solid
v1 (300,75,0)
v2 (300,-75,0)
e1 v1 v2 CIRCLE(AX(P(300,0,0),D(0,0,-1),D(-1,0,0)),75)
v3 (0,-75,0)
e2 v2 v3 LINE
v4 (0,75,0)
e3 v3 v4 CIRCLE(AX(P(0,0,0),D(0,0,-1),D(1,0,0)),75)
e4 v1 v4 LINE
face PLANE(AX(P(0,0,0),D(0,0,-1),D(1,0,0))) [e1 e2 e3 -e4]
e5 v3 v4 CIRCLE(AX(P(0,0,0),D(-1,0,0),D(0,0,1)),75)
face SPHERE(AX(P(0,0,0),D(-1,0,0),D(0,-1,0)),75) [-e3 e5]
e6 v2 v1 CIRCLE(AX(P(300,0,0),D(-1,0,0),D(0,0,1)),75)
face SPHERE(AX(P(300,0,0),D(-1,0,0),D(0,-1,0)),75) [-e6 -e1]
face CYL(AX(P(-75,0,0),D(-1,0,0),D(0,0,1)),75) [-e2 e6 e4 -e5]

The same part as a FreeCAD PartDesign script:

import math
import FreeCAD as App
import Part
import Sketcher

doc = App.newDocument("Part")
body = doc.addObject("PartDesign::Body", "Body")

# Sketch on XY plane
sketch1 = body.newObject("Sketcher::SketchObject", "Sketch")
sketch1.AttachmentSupport = (doc.getObject("XY_Plane"), [""])
sketch1.MapMode = "FlatFace"
sketch1.addGeometry([
    Part.LineSegment(App.Vector(-75, 0, 0), App.Vector(375, 0, 0)),
    Part.ArcOfCircle(Part.Circle(App.Vector(300, 0, 0), App.Vector(0, 0, 1), 75), math.radians(0), math.radians(90)),
    Part.LineSegment(App.Vector(300, 75, 0), App.Vector(0, 75, 0)),
    Part.ArcOfCircle(Part.Circle(App.Vector(0, 0, 0), App.Vector(0, 0, 1), 75), math.radians(90), math.radians(180)),
], False)
sketch1.addConstraint([
    Sketcher.Constraint("Coincident", 0, 2, 1, 1),
    Sketcher.Constraint("Tangent", 1, 2, 2, 1),
    Sketcher.Constraint("Tangent", 2, 2, 3, 1),
    Sketcher.Constraint("Coincident", 3, 2, 0, 1),
    Sketcher.Constraint("Horizontal", 0),
    Sketcher.Constraint("Horizontal", 2),
    Sketcher.Constraint("Coincident", 3, 3, -1, 1),
    Sketcher.Constraint("Equal", 1, 3),
    Sketcher.Constraint("PointOnObject", 0, 2, -1),
    Sketcher.Constraint("Radius", 1, 75.0),
    Sketcher.Constraint("DistanceX", 0, 1, 0, 2, 450.0),
])
revolution = body.newObject("PartDesign::Revolution", "Revolution")
revolution.Profile = sketch1
revolution.ReferenceAxis = (sketch1, ["H_Axis"])
revolution.Angle = 180

doc.recompute()
